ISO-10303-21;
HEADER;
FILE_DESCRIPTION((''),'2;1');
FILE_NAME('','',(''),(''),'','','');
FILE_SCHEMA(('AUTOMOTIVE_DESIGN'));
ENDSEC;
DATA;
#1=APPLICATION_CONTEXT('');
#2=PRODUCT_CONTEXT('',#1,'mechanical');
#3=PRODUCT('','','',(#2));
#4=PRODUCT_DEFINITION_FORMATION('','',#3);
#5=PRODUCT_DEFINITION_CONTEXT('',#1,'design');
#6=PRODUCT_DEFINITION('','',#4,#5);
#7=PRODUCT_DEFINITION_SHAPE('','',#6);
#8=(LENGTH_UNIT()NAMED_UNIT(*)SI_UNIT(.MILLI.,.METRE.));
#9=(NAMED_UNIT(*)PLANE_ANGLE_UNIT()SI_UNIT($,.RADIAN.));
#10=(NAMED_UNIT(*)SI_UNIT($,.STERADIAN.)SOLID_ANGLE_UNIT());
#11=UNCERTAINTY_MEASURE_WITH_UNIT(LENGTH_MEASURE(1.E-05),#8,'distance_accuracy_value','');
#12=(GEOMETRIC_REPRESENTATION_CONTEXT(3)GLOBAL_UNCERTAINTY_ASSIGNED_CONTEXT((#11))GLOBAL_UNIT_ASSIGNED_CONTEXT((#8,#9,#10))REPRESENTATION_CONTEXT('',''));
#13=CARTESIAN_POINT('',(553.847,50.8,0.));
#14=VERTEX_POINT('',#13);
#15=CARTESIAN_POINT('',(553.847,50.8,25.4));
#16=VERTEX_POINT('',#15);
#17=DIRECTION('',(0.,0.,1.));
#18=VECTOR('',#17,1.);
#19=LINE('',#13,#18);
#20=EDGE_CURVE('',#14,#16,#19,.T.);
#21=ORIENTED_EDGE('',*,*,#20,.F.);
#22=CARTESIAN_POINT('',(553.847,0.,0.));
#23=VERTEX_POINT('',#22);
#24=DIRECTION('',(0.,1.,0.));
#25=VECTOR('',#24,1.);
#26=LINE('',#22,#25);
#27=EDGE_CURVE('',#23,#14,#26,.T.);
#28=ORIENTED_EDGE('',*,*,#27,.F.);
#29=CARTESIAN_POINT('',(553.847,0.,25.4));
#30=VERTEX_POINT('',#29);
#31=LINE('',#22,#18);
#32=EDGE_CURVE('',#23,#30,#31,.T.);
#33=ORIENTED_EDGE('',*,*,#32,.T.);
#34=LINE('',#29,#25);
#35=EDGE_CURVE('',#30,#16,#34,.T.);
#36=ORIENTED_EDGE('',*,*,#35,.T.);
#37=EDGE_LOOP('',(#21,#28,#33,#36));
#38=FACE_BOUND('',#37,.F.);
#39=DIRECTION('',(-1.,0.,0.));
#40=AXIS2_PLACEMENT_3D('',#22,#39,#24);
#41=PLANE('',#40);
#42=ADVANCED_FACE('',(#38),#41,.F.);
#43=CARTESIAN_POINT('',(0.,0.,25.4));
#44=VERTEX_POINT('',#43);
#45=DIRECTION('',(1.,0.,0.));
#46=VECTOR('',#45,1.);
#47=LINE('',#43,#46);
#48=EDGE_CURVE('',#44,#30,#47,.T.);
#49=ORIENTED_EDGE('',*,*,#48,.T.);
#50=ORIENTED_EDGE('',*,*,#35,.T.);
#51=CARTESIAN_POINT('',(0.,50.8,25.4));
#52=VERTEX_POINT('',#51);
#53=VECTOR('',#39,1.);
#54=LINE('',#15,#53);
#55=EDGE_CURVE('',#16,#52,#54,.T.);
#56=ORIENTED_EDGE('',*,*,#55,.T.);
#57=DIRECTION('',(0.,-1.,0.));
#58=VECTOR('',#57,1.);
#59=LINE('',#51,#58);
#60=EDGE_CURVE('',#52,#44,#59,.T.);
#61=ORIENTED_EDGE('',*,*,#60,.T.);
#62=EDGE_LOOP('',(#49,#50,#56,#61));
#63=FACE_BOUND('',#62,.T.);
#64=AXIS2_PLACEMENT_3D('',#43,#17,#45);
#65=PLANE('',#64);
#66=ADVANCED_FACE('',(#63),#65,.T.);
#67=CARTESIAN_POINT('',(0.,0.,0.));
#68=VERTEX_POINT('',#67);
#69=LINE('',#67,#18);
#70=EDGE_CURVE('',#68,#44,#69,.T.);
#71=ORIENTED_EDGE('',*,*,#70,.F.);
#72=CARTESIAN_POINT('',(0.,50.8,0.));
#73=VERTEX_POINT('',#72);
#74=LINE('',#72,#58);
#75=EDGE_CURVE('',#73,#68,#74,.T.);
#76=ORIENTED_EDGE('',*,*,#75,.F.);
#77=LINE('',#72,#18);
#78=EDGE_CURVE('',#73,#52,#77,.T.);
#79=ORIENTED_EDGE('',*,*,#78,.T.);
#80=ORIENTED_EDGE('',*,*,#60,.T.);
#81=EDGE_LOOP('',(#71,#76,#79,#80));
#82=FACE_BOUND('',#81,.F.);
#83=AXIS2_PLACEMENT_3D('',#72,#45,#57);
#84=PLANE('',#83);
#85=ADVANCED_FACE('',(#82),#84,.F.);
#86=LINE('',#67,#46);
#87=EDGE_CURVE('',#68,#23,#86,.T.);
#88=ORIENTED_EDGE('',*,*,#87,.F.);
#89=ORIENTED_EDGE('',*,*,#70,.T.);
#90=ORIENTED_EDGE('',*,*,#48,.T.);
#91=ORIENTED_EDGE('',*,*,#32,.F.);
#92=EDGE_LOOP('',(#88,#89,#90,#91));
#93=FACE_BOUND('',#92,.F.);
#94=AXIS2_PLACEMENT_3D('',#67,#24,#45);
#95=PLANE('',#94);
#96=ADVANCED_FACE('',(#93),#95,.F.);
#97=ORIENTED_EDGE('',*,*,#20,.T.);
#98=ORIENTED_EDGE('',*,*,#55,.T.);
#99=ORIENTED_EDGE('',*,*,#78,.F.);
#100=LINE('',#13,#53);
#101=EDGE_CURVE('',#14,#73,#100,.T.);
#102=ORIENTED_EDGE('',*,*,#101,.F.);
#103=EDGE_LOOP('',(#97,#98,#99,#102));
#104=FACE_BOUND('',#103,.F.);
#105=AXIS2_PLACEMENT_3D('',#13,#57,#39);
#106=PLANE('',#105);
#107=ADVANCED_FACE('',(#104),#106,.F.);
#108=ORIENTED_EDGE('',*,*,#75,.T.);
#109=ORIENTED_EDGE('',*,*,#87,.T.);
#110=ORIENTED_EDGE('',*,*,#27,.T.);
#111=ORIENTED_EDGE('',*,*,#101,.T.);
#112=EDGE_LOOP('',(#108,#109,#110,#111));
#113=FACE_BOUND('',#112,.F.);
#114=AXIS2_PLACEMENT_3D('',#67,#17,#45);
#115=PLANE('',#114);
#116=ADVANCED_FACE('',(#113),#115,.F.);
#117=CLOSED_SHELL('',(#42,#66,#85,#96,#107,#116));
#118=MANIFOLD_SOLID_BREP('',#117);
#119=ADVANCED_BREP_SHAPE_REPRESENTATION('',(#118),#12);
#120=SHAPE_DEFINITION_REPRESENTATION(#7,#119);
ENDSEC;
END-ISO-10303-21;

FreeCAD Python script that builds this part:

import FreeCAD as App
import Part
import Sketcher

V = App.Vector
Q = App.Units.Quantity

doc = App.newDocument("Part")
body = doc.addObject("PartDesign::Body", "Body")

# Sketch on XY plane
sketch1 = body.newObject("Sketcher::SketchObject", "Sketch")
sketch1.AttachmentSupport = (doc.getObject("XY_Plane"), [""])
sketch1.MapMode = "FlatFace"
sketch1.addGeometry([
    Part.LineSegment(V(0, 50.8, 0), V(0, 0, 0)),
    Part.LineSegment(V(0, 0, 0), V(553.847, 0, 0)),
    Part.LineSegment(V(553.847, 0, 0), V(553.847, 50.8, 0)),
    Part.LineSegment(V(553.847, 50.8, 0), V(0, 50.8, 0)),
], False)
sketch1.addConstraint([
    Sketcher.Constraint("Coincident", 0, 2, 1, 1),
    Sketcher.Constraint("Coincident", 1, 2, 2, 1),
    Sketcher.Constraint("Coincident", 2, 2, 3, 1),
    Sketcher.Constraint("Coincident", 3, 2, 0, 1),
    Sketcher.Constraint("Vertical", 0),
    Sketcher.Constraint("Horizontal", 1),
    Sketcher.Constraint("Vertical", 2),
    Sketcher.Constraint("Horizontal", 3),
    Sketcher.Constraint("Coincident", 0, 2, -1, 1),
    Sketcher.Constraint("DistanceY", 0, 2, 0, 1, Q("2 in")),
    Sketcher.Constraint("DistanceX", 1, 1, 1, 2, Q("21.805 in")),
])
pad1 = body.newObject("PartDesign::Pad", "Pad")
pad1.Profile = sketch1
pad1.Length = Q("1 in")

doc.recompute()
